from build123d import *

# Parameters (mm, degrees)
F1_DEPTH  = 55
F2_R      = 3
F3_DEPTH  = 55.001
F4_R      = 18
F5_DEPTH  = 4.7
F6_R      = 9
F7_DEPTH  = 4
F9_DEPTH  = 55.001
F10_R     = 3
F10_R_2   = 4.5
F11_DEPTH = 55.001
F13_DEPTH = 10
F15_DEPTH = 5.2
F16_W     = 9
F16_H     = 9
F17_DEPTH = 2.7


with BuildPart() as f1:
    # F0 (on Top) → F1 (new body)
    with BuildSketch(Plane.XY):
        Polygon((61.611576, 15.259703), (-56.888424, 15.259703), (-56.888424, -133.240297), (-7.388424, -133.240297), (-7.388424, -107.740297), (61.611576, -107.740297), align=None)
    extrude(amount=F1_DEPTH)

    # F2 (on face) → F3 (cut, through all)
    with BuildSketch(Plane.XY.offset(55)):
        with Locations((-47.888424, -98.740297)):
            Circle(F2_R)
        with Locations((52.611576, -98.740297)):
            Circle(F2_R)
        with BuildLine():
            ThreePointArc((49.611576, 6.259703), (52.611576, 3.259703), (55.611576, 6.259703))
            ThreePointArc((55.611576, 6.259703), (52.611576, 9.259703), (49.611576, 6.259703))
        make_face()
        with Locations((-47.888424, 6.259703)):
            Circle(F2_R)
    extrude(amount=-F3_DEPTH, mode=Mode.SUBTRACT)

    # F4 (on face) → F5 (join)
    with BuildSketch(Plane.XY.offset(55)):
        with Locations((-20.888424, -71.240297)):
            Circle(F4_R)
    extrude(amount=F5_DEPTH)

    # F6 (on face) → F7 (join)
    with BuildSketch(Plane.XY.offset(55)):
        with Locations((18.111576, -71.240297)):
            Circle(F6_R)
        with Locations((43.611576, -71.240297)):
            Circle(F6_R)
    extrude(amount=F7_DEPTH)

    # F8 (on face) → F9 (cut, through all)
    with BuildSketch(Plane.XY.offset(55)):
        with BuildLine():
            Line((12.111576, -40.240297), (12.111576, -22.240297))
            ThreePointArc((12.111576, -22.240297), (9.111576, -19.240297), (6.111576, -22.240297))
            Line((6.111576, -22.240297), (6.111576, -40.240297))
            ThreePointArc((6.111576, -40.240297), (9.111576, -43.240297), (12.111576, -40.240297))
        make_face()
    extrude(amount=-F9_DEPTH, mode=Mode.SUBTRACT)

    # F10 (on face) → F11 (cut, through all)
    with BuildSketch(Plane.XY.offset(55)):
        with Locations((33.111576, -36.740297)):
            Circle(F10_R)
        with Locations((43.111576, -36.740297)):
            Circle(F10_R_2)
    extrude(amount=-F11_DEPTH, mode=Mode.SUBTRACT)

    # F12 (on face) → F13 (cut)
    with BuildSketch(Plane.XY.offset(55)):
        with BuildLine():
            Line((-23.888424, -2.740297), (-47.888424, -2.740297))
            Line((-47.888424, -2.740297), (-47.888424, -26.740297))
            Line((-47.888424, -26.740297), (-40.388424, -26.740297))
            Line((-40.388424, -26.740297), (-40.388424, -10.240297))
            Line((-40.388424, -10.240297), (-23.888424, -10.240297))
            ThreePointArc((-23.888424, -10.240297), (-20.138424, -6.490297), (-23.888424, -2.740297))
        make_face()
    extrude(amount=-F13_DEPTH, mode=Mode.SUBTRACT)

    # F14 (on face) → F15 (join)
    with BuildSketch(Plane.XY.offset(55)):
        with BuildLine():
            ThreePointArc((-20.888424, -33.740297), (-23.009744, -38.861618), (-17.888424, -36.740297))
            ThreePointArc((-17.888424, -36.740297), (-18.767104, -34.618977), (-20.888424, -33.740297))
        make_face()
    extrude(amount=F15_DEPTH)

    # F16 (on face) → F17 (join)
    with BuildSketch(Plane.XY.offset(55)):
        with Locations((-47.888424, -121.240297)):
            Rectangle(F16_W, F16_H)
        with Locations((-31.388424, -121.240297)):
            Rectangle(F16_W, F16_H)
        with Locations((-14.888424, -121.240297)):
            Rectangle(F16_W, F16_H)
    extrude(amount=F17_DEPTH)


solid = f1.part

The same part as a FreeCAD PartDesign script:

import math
import FreeCAD as App
import Part
import Sketcher
from FreeCAD import Vector

doc = App.newDocument("Part")
params = doc.addObject("Spreadsheet::Sheet", "Params")
for row, (alias, value) in enumerate([
    ("sketch1_width", "69 mm"),
    ("sketch1_height", "123 mm"),
    ("sketch1_width2", "118.5 mm"),
    ("sketch1_height2", "148.5 mm"),
    ("pad1_length", "55 mm"),
    ("sketch2_diameter", "6 mm"),
    ("sketch3_diameter", "36 mm"),
    ("pad2_length", "4.7 mm"),
    ("sketch4_diameter", "18 mm"),
    ("pad3_length", "4 mm"),
    ("sketch5_radius", "3 mm"),
    ("sketch5_height", "18 mm"),
    ("sketch6_diameter", "6 mm"),
    ("sketch6_diameter2", "9 mm"),
    ("sketch7_width", "24 mm"),
    ("sketch7_radius", "3.75 mm"),
    ("pocket4_length", "10 mm"),
    ("sketch8_radius", "3 mm"),
    ("pad4_length", "5.2 mm"),
    ("sketch9_width", "9 mm"),
    ("pad5_length", "2.7 mm"),
], start=1):
    params.set(f"A{row}", alias)
    params.set(f"B{row}", "=" + value)
    params.setAlias(f"B{row}", alias)

body = doc.addObject("PartDesign::Body", "Body")

sketch1 = body.newObject("Sketcher::SketchObject", "Sketch")
sketch1.AttachmentSupport = (doc.getObject("XY_Plane"), [""])
sketch1.MapMode = "FlatFace"
sketch1.addGeometry([
    Part.LineSegment(Vector(62, 15, 0), Vector(-57, 15, 0)),
    Part.LineSegment(Vector(-57, 15, 0), Vector(-57, -133, 0)),
    Part.LineSegment(Vector(-57, -133, 0), Vector(-7, -133, 0)),
    Part.LineSegment(Vector(-7, -133, 0), Vector(-7, -108, 0)),
    Part.LineSegment(Vector(-7, -108, 0), Vector(62, -108, 0)),
    Part.LineSegment(Vector(62, -108, 0), Vector(62, 15, 0)),
], False)
sketch1.addConstraint([
    Sketcher.Constraint("Coincident", 0, 2, 1, 1),
    Sketcher.Constraint("Coincident", 1, 2, 2, 1),
    Sketcher.Constraint("Coincident", 2, 2, 3, 1),
    Sketcher.Constraint("Coincident", 3, 2, 4, 1),
    Sketcher.Constraint("Coincident", 4, 2, 5, 1),
    Sketcher.Constraint("Coincident", 5, 2, 0, 1),
    Sketcher.Constraint("Horizontal", 0),
    Sketcher.Constraint("Vertical", 1),
    Sketcher.Constraint("Horizontal", 2),
    Sketcher.Constraint("Vertical", 3),
    Sketcher.Constraint("Horizontal", 4),
    Sketcher.Constraint("Vertical", 5),
    Sketcher.Constraint("DistanceX", 4, 1, 4, 2, 69.0),
    Sketcher.Constraint("DistanceY", 5, 1, 5, 2, 123.0),
    Sketcher.Constraint("DistanceX", 0, 2, 0, 1, 118.5),
    Sketcher.Constraint("DistanceY", 1, 2, 1, 1, 148.5),
    Sketcher.Constraint("DistanceX", 0, 2, -1, 1, 56.888424),
    Sketcher.Constraint("DistanceY", -1, 1, 0, 2, 15.259703),
])
sketch1.setExpression("Constraints[12]", "Params.sketch1_width")
sketch1.setExpression("Constraints[13]", "Params.sketch1_height")
sketch1.setExpression("Constraints[14]", "Params.sketch1_width2")
sketch1.setExpression("Constraints[15]", "Params.sketch1_height2")
pad1 = body.newObject("PartDesign::Pad", "Pad")
pad1.Profile = sketch1
pad1.setExpression("Length", "Params.pad1_length")

sketch2 = body.newObject("Sketcher::SketchObject", "Sketch001")
sketch2.AttachmentSupport = (doc.getObject("XY_Plane"), [""])
sketch2.MapMode = "FlatFace"
sketch2.AttachmentOffset = App.Placement(Vector(0, 0, 55), App.Rotation())
sketch2.addGeometry([
    Part.Circle(Vector(-47.9, -98.7, 0), Vector(0, 0, 1), 3),
    Part.Circle(Vector(52.6, -98.7, 0), Vector(0, 0, 1), 3),
    Part.Circle(Vector(52.6, 6.3, 0), Vector(0, 0, 1), 3),
    Part.Circle(Vector(-47.9, 6.3, 0), Vector(0, 0, 1), 3),
], False)
sketch2.addConstraint([
    Sketcher.Constraint("Equal", 0, 1),
    Sketcher.Constraint("Equal", 1, 2),
    Sketcher.Constraint("Equal", 2, 3),
    Sketcher.Constraint("Horizontal", 0, 3, 1, 3),
    Sketcher.Constraint("Horizontal", 2, 3, 3, 3),
    Sketcher.Constraint("Vertical", 1, 3, 2, 3),
    Sketcher.Constraint("Vertical", 0, 3, 3, 3),
    Sketcher.Constraint("Diameter", 0, 6.0),
    Sketcher.Constraint("DistanceY", 1, 3, 2, 3, 105.0),
    Sketcher.Constraint("DistanceX", 0, 3, 1, 3, 100.5),
    Sketcher.Constraint("DistanceX", 0, 3, -1, 1, 47.888424),
    Sketcher.Constraint("DistanceY", 0, 3, -1, 1, 98.740297),
])
sketch2.setExpression("Constraints[7]", "Params.sketch2_diameter")
pocket1 = body.newObject("PartDesign::Pocket", "Pocket")
pocket1.Profile = sketch2
pocket1.Type = "ThroughAll"

sketch3 = body.newObject("Sketcher::SketchObject", "Sketch002")
sketch3.AttachmentSupport = (doc.getObject("XY_Plane"), [""])
sketch3.MapMode = "FlatFace"
sketch3.AttachmentOffset = App.Placement(Vector(0, 0, 55), App.Rotation())
sketch3.addGeometry(Part.Circle(Vector(-21, -71, 0), Vector(0, 0, 1), 18), False)
sketch3.addConstraint([
    Sketcher.Constraint("Diameter", 0, 36.0),
    Sketcher.Constraint("DistanceX", 0, 3, -1, 1, 20.888424),
    Sketcher.Constraint("DistanceY", 0, 3, -1, 1, 71.240297),
])
sketch3.setExpression("Constraints[0]", "Params.sketch3_diameter")
pad2 = body.newObject("PartDesign::Pad", "Pad001")
pad2.Profile = sketch3
pad2.setExpression("Length", "Params.pad2_length")

sketch4 = body.newObject("Sketcher::SketchObject", "Sketch003")
sketch4.AttachmentSupport = (doc.getObject("XY_Plane"), [""])
sketch4.MapMode = "FlatFace"
sketch4.AttachmentOffset = App.Placement(Vector(0, 0, 55), App.Rotation())
sketch4.addGeometry([
    Part.Circle(Vector(18, -71, 0), Vector(0, 0, 1), 9),
    Part.Circle(Vector(44, -71, 0), Vector(0, 0, 1), 9),
], False)
sketch4.addConstraint([
    Sketcher.Constraint("Equal", 0, 1),
    Sketcher.Constraint("Horizontal", 0, 3, 1, 3),
    Sketcher.Constraint("Diameter", 0, 18.0),
    Sketcher.Constraint("DistanceX", 0, 3, 1, 3, 25.5),
    Sketcher.Constraint("DistanceX", -1, 1, 0, 3, 18.111576),
    Sketcher.Constraint("DistanceY", 0, 3, -1, 1, 71.240297),
])
sketch4.setExpression("Constraints[2]", "Params.sketch4_diameter")
pad3 = body.newObject("PartDesign::Pad", "Pad002")
pad3.Profile = sketch4
pad3.setExpression("Length", "Params.pad3_length")

sketch5 = body.newObject("Sketcher::SketchObject", "Sketch004")
sketch5.AttachmentSupport = (doc.getObject("XY_Plane"), [""])
sketch5.MapMode = "FlatFace"
sketch5.AttachmentOffset = App.Placement(Vector(0, 0, 55), App.Rotation())
sketch5.addGeometry([
    Part.LineSegment(Vector(12.1, -40.2, 0), Vector(12.1, -22.2, 0)),
    Part.ArcOfCircle(Part.Circle(Vector(9.1, -22.2, 0), Vector(0, 0, 1), 3), math.radians(0), math.radians(180)),
    Part.LineSegment(Vector(6.1, -22.2, 0), Vector(6.1, -40.2, 0)),
    Part.ArcOfCircle(Part.Circle(Vector(9.1, -40.2, 0), Vector(0, 0, 1), 3), math.radians(180), math.radians(360)),
], False)
sketch5.addConstraint([
    Sketcher.Constraint("Tangent", 0, 2, 1, 1),
    Sketcher.Constraint("Tangent", 1, 2, 2, 1),
    Sketcher.Constraint("Tangent", 2, 2, 3, 1),
    Sketcher.Constraint("Tangent", 3, 2, 0, 1),
    Sketcher.Constraint("Vertical", 0),
    Sketcher.Constraint("Vertical", 2),
    Sketcher.Constraint("Radius", 1, 3.0),
    Sketcher.Constraint("DistanceY", 0, 1, 0, 2, 18.0),
    Sketcher.Constraint("DistanceX", -1, 1, 1, 3, 9.111576),
    Sketcher.Constraint("DistanceY", 1, 3, -1, 1, 22.240297),
])
sketch5.setExpression("Constraints[6]", "Params.sketch5_radius")
sketch5.setExpression("Constraints[7]", "Params.sketch5_height")
pocket2 = body.newObject("PartDesign::Pocket", "Pocket001")
pocket2.Profile = sketch5
pocket2.Type = "ThroughAll"

sketch6 = body.newObject("Sketcher::SketchObject", "Sketch005")
sketch6.AttachmentSupport = (doc.getObject("XY_Plane"), [""])
sketch6.MapMode = "FlatFace"
sketch6.AttachmentOffset = App.Placement(Vector(0, 0, 55), App.Rotation())
sketch6.addGeometry([
    Part.Circle(Vector(33.1, -36.7, 0), Vector(0, 0, 1), 3),
    Part.Circle(Vector(43.1, -36.7, 0), Vector(0, 0, 1), 4.5),
], False)
sketch6.addConstraint([
    Sketcher.Constraint("Horizontal", 0, 3, 1, 3),
    Sketcher.Constraint("Diameter", 0, 6.0),
    Sketcher.Constraint("Diameter", 1, 9.0),
    Sketcher.Constraint("DistanceX", 0, 3, 1, 3, 10.0),
    Sketcher.Constraint("DistanceX", -1, 1, 0, 3, 33.111576),
    Sketcher.Constraint("DistanceY", 0, 3, -1, 1, 36.740297),
])
sketch6.setExpression("Constraints[1]", "Params.sketch6_diameter")
sketch6.setExpression("Constraints[2]", "Params.sketch6_diameter2")
pocket3 = body.newObject("PartDesign::Pocket", "Pocket002")
pocket3.Profile = sketch6
pocket3.Type = "ThroughAll"

sketch7 = body.newObject("Sketcher::SketchObject", "Sketch006")
sketch7.AttachmentSupport = (doc.getObject("XY_Plane"), [""])
sketch7.MapMode = "FlatFace"
sketch7.AttachmentOffset = App.Placement(Vector(0, 0, 55), App.Rotation())
sketch7.addGeometry([
    Part.LineSegment(Vector(-23.9, -2.7, 0), Vector(-47.9, -2.7, 0)),
    Part.LineSegment(Vector(-47.9, -2.7, 0), Vector(-47.9, -26.7, 0)),
    Part.LineSegment(Vector(-47.9, -26.7, 0), Vector(-40.4, -26.7, 0)),
    Part.LineSegment(Vector(-40.4, -26.7, 0), Vector(-40.4, -10.2, 0)),
    Part.LineSegment(Vector(-40.4, -10.2, 0), Vector(-23.9, -10.2, 0)),
    Part.ArcOfCircle(Part.Circle(Vector(-23.9, -6.5, 0), Vector(0, 0, 1), 3.8), math.radians(-90), math.radians(90)),
], False)
sketch7.addConstraint([
    Sketcher.Constraint("Coincident", 0, 2, 1, 1),
    Sketcher.Constraint("Coincident", 1, 2, 2, 1),
    Sketcher.Constraint("Coincident", 2, 2, 3, 1),
    Sketcher.Constraint("Coincident", 3, 2, 4, 1),
    Sketcher.Constraint("Tangent", 4, 2, 5, 1),
    Sketcher.Constraint("Tangent", 5, 2, 0, 1),
    Sketcher.Constraint("Horizontal", 0),
    Sketcher.Constraint("Vertical", 1),
    Sketcher.Constraint("Horizontal", 2),
    Sketcher.Constraint("Vertical", 3),
    Sketcher.Constraint("Horizontal", 4),
    Sketcher.Constraint("Equal", 0, 1),
    Sketcher.Constraint("Equal", 4, 3),
    Sketcher.Constraint("DistanceX", 0, 2, 0, 1, 24.0),
    Sketcher.Constraint("Radius", 5, 3.75),
    Sketcher.Constraint("DistanceX", 5, 3, -1, 1, 23.888424),
    Sketcher.Constraint("DistanceY", 5, 3, -1, 1, 6.490297),
])
sketch7.setExpression("Constraints[13]", "Params.sketch7_width")
sketch7.setExpression("Constraints[14]", "Params.sketch7_radius")
pocket4 = body.newObject("PartDesign::Pocket", "Pocket003")
pocket4.Profile = sketch7
pocket4.setExpression("Length", "Params.pocket4_length")

sketch8 = body.newObject("Sketcher::SketchObject", "Sketch007")
sketch8.AttachmentSupport = (doc.getObject("XY_Plane"), [""])
sketch8.MapMode = "FlatFace"
sketch8.AttachmentOffset = App.Placement(Vector(0, 0, 55), App.Rotation())
sketch8.addGeometry([
    Part.ArcOfCircle(Part.Circle(Vector(-20.9, -36.7, 0), Vector(0, 0, 1), 3), math.radians(90), math.radians(360)),
    Part.ArcOfCircle(Part.Circle(Vector(-20.9, -36.7, 0), Vector(0, 0, 1), 3), math.radians(0), math.radians(90)),
], False)
sketch8.addConstraint([
    Sketcher.Constraint("Tangent", 0, 1, 1, 2),
    Sketcher.Constraint("Coincident", 1, 1, 0, 2),
    Sketcher.Constraint("Horizontal", 0, 3, 1, 1),
    Sketcher.Constraint("Vertical", 1, 3, 0, 1),
    Sketcher.Constraint("Radius", 0, 3.0),
    Sketcher.Constraint("DistanceY", 1, 3, -1, 1, 36.740298),
    Sketcher.Constraint("DistanceX", 0, 3, -1, 1, 20.888424),
])
sketch8.setExpression("Constraints[4]", "Params.sketch8_radius")
pad4 = body.newObject("PartDesign::Pad", "Pad003")
pad4.Profile = sketch8
pad4.setExpression("Length", "Params.pad4_length")

sketch9 = body.newObject("Sketcher::SketchObject", "Sketch008")
sketch9.AttachmentSupport = (doc.getObject("XY_Plane"), [""])
sketch9.MapMode = "FlatFace"
sketch9.AttachmentOffset = App.Placement(Vector(0, 0, 55), App.Rotation())
sketch9.addGeometry([
    Part.LineSegment(Vector(-52, -117, 0), Vector(-52, -126, 0)),
    Part.LineSegment(Vector(-52, -126, 0), Vector(-43, -126, 0)),
    Part.LineSegment(Vector(-43, -126, 0), Vector(-43, -117, 0)),
    Part.LineSegment(Vector(-43, -117, 0), Vector(-52, -117, 0)),
    Part.LineSegment(Vector(-36, -117, 0), Vector(-36, -126, 0)),
    Part.LineSegment(Vector(-36, -126, 0), Vector(-27, -126, 0)),
    Part.LineSegment(Vector(-27, -126, 0), Vector(-27, -117, 0)),
    Part.LineSegment(Vector(-27, -117, 0), Vector(-36, -117, 0)),
    Part.LineSegment(Vector(-19, -117, 0), Vector(-19, -126, 0)),
    Part.LineSegment(Vector(-19, -126, 0), Vector(-10, -126, 0)),
    Part.LineSegment(Vector(-10, -126, 0), Vector(-10, -117, 0)),
    Part.LineSegment(Vector(-10, -117, 0), Vector(-19, -117, 0)),
], False)
sketch9.addConstraint([
    Sketcher.Constraint("Coincident", 0, 2, 1, 1),
    Sketcher.Constraint("Coincident", 1, 2, 2, 1),
    Sketcher.Constraint("Coincident", 2, 2, 3, 1),
    Sketcher.Constraint("Coincident", 3, 2, 0, 1),
    Sketcher.Constraint("Coincident", 4, 2, 5, 1),
    Sketcher.Constraint("Coincident", 5, 2, 6, 1),
    Sketcher.Constraint("Coincident", 6, 2, 7, 1),
    Sketcher.Constraint("Coincident", 7, 2, 4, 1),
    Sketcher.Constraint("Coincident", 8, 2, 9, 1),
    Sketcher.Constraint("Coincident", 9, 2, 10, 1),
    Sketcher.Constraint("Coincident", 10, 2, 11, 1),
    Sketcher.Constraint("Coincident", 11, 2, 8, 1),
    Sketcher.Constraint("Vertical", 0),
    Sketcher.Constraint("Horizontal", 1),
    Sketcher.Constraint("Vertical", 2),
    Sketcher.Constraint("Horizontal", 3),
    Sketcher.Constraint("Vertical", 4),
    Sketcher.Constraint("Horizontal", 5),
    Sketcher.Constraint("Vertical", 6),
    Sketcher.Constraint("Horizontal", 7),
    Sketcher.Constraint("Vertical", 8),
    Sketcher.Constraint("Horizontal", 9),
    Sketcher.Constraint("Vertical", 10),
    Sketcher.Constraint("Horizontal", 11),
    Sketcher.Constraint("Horizontal", 1, 2, 4, 2),
    Sketcher.Constraint("Horizontal", 3, 2, 6, 2),
    Sketcher.Constraint("Horizontal", 5, 2, 8, 2),
    Sketcher.Constraint("Horizontal", 7, 2, 10, 2),
    Sketcher.Constraint("Equal", 3, 5),
    Sketcher.Constraint("Equal", 7, 9),
    Sketcher.Constraint("Equal", 11, 0),
    Sketcher.Constraint("DistanceX", 1, 1, 1, 2, 9.0),
    Sketcher.Constraint("DistanceX", 1, 2, 8, 2, 24.0),
    Sketcher.Constraint("DistanceX", 1, 2, 4, 2, 7.5),
    Sketcher.Constraint("DistanceX", 0, 2, -1, 1, 52.388424),
    Sketcher.Constraint("DistanceY", 0, 2, -1, 1, 125.740297),
])
sketch9.setExpression("Constraints[31]", "Params.sketch9_width")
pad5 = body.newObject("PartDesign::Pad", "Pad004")
pad5.Profile = sketch9
pad5.setExpression("Length", "Params.pad5_length")

doc.recompute()
